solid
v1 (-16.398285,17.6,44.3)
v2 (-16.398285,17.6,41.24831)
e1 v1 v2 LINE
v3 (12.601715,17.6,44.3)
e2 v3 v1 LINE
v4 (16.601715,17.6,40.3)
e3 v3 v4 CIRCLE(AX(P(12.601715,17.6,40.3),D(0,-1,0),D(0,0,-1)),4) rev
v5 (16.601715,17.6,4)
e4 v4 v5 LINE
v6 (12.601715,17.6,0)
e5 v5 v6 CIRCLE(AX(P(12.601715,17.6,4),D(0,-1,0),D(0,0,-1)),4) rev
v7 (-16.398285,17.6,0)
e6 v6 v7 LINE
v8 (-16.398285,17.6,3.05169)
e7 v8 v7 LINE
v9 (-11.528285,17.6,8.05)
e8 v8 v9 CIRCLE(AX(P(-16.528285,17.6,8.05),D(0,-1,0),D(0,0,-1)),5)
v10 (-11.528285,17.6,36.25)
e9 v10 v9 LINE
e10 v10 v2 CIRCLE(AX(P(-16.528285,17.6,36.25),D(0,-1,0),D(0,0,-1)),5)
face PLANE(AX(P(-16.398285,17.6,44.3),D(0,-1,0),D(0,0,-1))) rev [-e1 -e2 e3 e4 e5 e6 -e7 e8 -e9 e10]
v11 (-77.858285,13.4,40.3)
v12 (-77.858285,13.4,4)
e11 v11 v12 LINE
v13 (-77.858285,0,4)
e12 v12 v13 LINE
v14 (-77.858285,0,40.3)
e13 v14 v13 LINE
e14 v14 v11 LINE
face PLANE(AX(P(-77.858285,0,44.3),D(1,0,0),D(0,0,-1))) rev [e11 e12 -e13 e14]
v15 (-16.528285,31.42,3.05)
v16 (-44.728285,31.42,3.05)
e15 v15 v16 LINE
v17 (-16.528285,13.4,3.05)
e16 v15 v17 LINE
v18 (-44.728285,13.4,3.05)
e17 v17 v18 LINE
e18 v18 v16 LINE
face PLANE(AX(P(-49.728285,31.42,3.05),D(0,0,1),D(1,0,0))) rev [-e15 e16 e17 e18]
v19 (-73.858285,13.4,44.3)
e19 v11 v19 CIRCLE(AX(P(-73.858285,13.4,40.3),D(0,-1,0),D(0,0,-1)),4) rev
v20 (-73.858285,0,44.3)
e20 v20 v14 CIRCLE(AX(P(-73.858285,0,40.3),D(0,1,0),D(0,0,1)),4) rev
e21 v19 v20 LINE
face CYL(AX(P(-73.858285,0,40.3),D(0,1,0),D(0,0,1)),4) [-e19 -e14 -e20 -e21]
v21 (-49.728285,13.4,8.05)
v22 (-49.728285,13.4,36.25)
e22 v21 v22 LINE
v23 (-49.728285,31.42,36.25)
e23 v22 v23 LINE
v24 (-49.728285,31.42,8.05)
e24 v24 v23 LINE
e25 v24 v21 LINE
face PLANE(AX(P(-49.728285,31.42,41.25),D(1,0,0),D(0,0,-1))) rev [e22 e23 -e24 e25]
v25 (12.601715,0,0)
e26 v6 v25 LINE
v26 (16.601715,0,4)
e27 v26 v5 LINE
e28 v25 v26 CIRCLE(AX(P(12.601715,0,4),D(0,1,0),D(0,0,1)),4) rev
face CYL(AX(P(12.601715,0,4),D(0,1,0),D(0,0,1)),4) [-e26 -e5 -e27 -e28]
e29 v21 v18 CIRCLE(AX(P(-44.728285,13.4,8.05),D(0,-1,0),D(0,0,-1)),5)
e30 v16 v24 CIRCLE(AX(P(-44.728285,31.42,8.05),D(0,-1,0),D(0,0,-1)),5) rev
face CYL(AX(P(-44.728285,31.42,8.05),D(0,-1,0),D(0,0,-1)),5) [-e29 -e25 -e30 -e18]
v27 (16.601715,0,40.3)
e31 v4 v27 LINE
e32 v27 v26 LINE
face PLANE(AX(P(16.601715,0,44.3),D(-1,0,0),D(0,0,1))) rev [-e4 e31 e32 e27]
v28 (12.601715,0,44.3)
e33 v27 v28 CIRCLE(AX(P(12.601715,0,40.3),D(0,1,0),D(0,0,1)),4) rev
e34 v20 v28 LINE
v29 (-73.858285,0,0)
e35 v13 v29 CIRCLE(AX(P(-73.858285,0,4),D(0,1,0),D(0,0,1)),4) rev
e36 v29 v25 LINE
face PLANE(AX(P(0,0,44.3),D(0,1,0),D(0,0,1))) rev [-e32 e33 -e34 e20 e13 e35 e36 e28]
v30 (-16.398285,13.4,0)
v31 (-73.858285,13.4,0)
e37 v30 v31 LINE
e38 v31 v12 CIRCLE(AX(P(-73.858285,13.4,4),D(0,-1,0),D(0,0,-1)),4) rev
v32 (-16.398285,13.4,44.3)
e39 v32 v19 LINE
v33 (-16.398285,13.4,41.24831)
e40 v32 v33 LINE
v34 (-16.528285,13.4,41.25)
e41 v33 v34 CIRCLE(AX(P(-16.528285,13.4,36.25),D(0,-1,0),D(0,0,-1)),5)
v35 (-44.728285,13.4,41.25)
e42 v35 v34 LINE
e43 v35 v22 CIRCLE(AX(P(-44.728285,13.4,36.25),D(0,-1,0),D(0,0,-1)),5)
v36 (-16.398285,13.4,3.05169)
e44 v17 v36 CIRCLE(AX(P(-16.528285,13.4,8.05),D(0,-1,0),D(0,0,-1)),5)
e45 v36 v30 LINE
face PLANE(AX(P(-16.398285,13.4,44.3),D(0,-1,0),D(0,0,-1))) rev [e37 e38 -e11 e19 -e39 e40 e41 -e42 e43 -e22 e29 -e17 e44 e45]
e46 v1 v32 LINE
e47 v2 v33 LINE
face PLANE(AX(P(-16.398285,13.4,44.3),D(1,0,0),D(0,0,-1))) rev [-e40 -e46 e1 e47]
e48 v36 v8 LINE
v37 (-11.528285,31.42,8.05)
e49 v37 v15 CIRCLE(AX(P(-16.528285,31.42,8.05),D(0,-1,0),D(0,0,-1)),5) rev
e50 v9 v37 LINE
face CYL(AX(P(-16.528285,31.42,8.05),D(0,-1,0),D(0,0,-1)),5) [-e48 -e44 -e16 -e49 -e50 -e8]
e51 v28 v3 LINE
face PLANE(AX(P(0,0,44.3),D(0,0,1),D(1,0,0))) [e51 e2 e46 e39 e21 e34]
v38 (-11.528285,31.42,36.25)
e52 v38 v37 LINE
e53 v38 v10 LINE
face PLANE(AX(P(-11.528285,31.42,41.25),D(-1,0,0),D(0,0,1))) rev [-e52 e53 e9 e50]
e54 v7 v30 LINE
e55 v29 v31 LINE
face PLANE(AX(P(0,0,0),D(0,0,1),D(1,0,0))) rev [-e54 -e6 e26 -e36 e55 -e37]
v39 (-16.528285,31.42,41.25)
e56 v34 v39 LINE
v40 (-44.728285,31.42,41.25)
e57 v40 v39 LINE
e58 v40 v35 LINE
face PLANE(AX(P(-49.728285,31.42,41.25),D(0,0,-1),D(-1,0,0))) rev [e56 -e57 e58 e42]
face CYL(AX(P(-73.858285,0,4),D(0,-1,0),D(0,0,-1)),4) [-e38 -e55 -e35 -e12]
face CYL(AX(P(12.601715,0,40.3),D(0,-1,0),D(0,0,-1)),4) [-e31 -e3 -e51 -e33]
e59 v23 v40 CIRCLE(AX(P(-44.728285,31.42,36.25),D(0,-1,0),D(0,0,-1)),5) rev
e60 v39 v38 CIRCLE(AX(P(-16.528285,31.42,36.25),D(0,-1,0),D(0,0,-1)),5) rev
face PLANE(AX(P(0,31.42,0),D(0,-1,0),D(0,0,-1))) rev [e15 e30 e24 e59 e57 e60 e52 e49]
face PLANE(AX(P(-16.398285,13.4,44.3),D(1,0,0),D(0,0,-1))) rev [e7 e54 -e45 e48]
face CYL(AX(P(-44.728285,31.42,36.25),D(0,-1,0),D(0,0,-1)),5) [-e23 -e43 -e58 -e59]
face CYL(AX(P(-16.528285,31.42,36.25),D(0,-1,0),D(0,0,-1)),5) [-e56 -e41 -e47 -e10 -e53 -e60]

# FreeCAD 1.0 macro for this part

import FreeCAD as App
import Part
import Sketcher
from FreeCAD import Vector
Q = App.Units.Quantity


def edges_at(feature, points):
    """Names of the edges that pass closest to the given points."""
    edges = feature.Shape.Edges
    near = lambda p: min(range(len(edges)), key=lambda i: edges[i].distToShape(Part.Vertex(*p))[0])
    return sorted({f"Edge{near(p) + 1}" for p in points})


def add_polygon(sketch, points):
    """Adds a closed chain of lines whose ends are joined by coincident constraints."""
    first, n = sketch.GeometryCount, len(points)
    for a, b in zip(points, points[1:] + points[:1]):
        sketch.addGeometry(Part.LineSegment(App.Vector(*a, 0), App.Vector(*b, 0)), False)
    for i in range(n):
        sketch.addConstraint(Sketcher.Constraint("Coincident", first + i, 2, first + (i + 1) % n, 1))

doc = App.newDocument("Part")
params = doc.addObject("Spreadsheet::Sheet", "Params")
for row, (alias, value) in enumerate([
    ("sketch1_width", "33 mm"),
    ("sketch1_height", "17.6 mm"),
    ("sketch1_height2", "4.2 mm"),
    ("sketch1_width2", "94.46 mm"),
    ("pad1_length", "44.3 mm"),
    ("sketch2_width", "38.2 mm"),
    ("pad2_length", "18.02 mm"),
    ("fillet_radius", "5 mm"),
    ("fillet2_radius", "4 mm"),
], start=1):
    params.set(f"A{row}", alias)
    params.set(f"B{row}", "=" + value)
    params.setAlias(f"B{row}", alias)

body = doc.addObject("PartDesign::Body", "Body")

# Sketch on XY plane
sketch1 = doc.addObject("Sketcher::SketchObject", "Sketch")
body.addObject(sketch1)
sketch1.AttachmentSupport = (doc.XY_Plane, [""])
sketch1.MapMode = "FlatFace"
add_polygon(sketch1, [(-77.9, 0), (16.6, 0), (16.6, 17.6), (-16.4, 17.6), (-16.4, 13.4), (-77.9, 13.4)])  # lines 0-5
sketch1.addConstraint(Sketcher.Constraint("Horizontal", 0))
sketch1.addConstraint(Sketcher.Constraint("Vertical", 1))
sketch1.addConstraint(Sketcher.Constraint("Horizontal", 2))
sketch1.addConstraint(Sketcher.Constraint("Vertical", 3))
sketch1.addConstraint(Sketcher.Constraint("Horizontal", 4))
sketch1.addConstraint(Sketcher.Constraint("Vertical", 5))
sketch1.addConstraint(Sketcher.Constraint("PointOnObject", 0, 2, -1))
sketch1.addConstraint(Sketcher.Constraint("DistanceX", 2, 2, 2, 1, Q("33 mm")))
sketch1.addConstraint(Sketcher.Constraint("DistanceY", 1, 1, 1, 2, Q("17.6 mm")))
sketch1.addConstraint(Sketcher.Constraint("DistanceY", 3, 2, 3, 1, Q("4.2 mm")))
sketch1.addConstraint(Sketcher.Constraint("DistanceX", 0, 1, 0, 2, Q("94.46 mm")))
sketch1.addConstraint(Sketcher.Constraint("DistanceX", -1, 1, 0, 2, Q("16.601715 mm")))
sketch1.setExpression("Constraints[13]", "Params.sketch1_width")
sketch1.setExpression("Constraints[14]", "Params.sketch1_height")
sketch1.setExpression("Constraints[15]", "Params.sketch1_height2")
sketch1.setExpression("Constraints[16]", "Params.sketch1_width2")
pad1 = doc.addObject("PartDesign::Pad", "Pad")
body.addObject(pad1)
pad1.Profile = sketch1
pad1.setExpression("Length", "Params.pad1_length")

# Sketch on XZ plane
sketch2 = doc.addObject("Sketcher::SketchObject", "Sketch001")
body.addObject(sketch2)
sketch2.AttachmentSupport = (doc.XZ_Plane, [""])
sketch2.MapMode = "FlatFace"
sketch2.AttachmentOffset = App.Placement(Vector(0, 0, -13.4), App.Rotation())
add_polygon(sketch2, [(-50, 3), (-50, 41), (-12, 41), (-12, 3)])  # lines 0-3
sketch2.addConstraint(Sketcher.Constraint("Vertical", 0))
sketch2.addConstraint(Sketcher.Constraint("Horizontal", 1))
sketch2.addConstraint(Sketcher.Constraint("Vertical", 2))
sketch2.addConstraint(Sketcher.Constraint("Horizontal", 3))
sketch2.addConstraint(Sketcher.Constraint("Equal", 3, 0))
sketch2.addConstraint(Sketcher.Constraint("DistanceX", 1, 1, 1, 2, Q("38.2 mm")))
sketch2.addConstraint(Sketcher.Constraint("DistanceY", -1, 1, 0, 2, Q("41.25 mm")))
sketch2.addConstraint(Sketcher.Constraint("DistanceX", 0, 2, -1, 1, Q("49.728285 mm")))
sketch2.setExpression("Constraints[9]", "Params.sketch2_width")
pad2 = doc.addObject("PartDesign::Pad", "Pad001")
body.addObject(pad2)
pad2.Profile = sketch2
pad2.setExpression("Length", "Params.pad2_length")
pad2.Reversed = True
doc.recompute()

fillet = doc.addObject("PartDesign::Fillet", "Fillet")
body.addObject(fillet)
fillet.Base = (pad2, edges_at(pad2, [
    (-49.728, 22.41, 3.05),
    (-11.528, 24.51, 3.05),
    (-11.528, 24.51, 41.25),
    (-49.728, 22.41, 41.25),
]))
fillet.setExpression("Radius", "Params.fillet_radius")
doc.recompute()

fillet2 = doc.addObject("PartDesign::Fillet", "Fillet001")
body.addObject(fillet2)
fillet2.Base = (fillet, edges_at(fillet, [
    (-77.858, 6.7, 44.3),
    (-77.858, 6.7, 0),
    (16.602, 8.8, 44.3),
    (16.602, 8.8, 0),
]))
fillet2.setExpression("Radius", "Params.fillet2_radius")

doc.recompute()
